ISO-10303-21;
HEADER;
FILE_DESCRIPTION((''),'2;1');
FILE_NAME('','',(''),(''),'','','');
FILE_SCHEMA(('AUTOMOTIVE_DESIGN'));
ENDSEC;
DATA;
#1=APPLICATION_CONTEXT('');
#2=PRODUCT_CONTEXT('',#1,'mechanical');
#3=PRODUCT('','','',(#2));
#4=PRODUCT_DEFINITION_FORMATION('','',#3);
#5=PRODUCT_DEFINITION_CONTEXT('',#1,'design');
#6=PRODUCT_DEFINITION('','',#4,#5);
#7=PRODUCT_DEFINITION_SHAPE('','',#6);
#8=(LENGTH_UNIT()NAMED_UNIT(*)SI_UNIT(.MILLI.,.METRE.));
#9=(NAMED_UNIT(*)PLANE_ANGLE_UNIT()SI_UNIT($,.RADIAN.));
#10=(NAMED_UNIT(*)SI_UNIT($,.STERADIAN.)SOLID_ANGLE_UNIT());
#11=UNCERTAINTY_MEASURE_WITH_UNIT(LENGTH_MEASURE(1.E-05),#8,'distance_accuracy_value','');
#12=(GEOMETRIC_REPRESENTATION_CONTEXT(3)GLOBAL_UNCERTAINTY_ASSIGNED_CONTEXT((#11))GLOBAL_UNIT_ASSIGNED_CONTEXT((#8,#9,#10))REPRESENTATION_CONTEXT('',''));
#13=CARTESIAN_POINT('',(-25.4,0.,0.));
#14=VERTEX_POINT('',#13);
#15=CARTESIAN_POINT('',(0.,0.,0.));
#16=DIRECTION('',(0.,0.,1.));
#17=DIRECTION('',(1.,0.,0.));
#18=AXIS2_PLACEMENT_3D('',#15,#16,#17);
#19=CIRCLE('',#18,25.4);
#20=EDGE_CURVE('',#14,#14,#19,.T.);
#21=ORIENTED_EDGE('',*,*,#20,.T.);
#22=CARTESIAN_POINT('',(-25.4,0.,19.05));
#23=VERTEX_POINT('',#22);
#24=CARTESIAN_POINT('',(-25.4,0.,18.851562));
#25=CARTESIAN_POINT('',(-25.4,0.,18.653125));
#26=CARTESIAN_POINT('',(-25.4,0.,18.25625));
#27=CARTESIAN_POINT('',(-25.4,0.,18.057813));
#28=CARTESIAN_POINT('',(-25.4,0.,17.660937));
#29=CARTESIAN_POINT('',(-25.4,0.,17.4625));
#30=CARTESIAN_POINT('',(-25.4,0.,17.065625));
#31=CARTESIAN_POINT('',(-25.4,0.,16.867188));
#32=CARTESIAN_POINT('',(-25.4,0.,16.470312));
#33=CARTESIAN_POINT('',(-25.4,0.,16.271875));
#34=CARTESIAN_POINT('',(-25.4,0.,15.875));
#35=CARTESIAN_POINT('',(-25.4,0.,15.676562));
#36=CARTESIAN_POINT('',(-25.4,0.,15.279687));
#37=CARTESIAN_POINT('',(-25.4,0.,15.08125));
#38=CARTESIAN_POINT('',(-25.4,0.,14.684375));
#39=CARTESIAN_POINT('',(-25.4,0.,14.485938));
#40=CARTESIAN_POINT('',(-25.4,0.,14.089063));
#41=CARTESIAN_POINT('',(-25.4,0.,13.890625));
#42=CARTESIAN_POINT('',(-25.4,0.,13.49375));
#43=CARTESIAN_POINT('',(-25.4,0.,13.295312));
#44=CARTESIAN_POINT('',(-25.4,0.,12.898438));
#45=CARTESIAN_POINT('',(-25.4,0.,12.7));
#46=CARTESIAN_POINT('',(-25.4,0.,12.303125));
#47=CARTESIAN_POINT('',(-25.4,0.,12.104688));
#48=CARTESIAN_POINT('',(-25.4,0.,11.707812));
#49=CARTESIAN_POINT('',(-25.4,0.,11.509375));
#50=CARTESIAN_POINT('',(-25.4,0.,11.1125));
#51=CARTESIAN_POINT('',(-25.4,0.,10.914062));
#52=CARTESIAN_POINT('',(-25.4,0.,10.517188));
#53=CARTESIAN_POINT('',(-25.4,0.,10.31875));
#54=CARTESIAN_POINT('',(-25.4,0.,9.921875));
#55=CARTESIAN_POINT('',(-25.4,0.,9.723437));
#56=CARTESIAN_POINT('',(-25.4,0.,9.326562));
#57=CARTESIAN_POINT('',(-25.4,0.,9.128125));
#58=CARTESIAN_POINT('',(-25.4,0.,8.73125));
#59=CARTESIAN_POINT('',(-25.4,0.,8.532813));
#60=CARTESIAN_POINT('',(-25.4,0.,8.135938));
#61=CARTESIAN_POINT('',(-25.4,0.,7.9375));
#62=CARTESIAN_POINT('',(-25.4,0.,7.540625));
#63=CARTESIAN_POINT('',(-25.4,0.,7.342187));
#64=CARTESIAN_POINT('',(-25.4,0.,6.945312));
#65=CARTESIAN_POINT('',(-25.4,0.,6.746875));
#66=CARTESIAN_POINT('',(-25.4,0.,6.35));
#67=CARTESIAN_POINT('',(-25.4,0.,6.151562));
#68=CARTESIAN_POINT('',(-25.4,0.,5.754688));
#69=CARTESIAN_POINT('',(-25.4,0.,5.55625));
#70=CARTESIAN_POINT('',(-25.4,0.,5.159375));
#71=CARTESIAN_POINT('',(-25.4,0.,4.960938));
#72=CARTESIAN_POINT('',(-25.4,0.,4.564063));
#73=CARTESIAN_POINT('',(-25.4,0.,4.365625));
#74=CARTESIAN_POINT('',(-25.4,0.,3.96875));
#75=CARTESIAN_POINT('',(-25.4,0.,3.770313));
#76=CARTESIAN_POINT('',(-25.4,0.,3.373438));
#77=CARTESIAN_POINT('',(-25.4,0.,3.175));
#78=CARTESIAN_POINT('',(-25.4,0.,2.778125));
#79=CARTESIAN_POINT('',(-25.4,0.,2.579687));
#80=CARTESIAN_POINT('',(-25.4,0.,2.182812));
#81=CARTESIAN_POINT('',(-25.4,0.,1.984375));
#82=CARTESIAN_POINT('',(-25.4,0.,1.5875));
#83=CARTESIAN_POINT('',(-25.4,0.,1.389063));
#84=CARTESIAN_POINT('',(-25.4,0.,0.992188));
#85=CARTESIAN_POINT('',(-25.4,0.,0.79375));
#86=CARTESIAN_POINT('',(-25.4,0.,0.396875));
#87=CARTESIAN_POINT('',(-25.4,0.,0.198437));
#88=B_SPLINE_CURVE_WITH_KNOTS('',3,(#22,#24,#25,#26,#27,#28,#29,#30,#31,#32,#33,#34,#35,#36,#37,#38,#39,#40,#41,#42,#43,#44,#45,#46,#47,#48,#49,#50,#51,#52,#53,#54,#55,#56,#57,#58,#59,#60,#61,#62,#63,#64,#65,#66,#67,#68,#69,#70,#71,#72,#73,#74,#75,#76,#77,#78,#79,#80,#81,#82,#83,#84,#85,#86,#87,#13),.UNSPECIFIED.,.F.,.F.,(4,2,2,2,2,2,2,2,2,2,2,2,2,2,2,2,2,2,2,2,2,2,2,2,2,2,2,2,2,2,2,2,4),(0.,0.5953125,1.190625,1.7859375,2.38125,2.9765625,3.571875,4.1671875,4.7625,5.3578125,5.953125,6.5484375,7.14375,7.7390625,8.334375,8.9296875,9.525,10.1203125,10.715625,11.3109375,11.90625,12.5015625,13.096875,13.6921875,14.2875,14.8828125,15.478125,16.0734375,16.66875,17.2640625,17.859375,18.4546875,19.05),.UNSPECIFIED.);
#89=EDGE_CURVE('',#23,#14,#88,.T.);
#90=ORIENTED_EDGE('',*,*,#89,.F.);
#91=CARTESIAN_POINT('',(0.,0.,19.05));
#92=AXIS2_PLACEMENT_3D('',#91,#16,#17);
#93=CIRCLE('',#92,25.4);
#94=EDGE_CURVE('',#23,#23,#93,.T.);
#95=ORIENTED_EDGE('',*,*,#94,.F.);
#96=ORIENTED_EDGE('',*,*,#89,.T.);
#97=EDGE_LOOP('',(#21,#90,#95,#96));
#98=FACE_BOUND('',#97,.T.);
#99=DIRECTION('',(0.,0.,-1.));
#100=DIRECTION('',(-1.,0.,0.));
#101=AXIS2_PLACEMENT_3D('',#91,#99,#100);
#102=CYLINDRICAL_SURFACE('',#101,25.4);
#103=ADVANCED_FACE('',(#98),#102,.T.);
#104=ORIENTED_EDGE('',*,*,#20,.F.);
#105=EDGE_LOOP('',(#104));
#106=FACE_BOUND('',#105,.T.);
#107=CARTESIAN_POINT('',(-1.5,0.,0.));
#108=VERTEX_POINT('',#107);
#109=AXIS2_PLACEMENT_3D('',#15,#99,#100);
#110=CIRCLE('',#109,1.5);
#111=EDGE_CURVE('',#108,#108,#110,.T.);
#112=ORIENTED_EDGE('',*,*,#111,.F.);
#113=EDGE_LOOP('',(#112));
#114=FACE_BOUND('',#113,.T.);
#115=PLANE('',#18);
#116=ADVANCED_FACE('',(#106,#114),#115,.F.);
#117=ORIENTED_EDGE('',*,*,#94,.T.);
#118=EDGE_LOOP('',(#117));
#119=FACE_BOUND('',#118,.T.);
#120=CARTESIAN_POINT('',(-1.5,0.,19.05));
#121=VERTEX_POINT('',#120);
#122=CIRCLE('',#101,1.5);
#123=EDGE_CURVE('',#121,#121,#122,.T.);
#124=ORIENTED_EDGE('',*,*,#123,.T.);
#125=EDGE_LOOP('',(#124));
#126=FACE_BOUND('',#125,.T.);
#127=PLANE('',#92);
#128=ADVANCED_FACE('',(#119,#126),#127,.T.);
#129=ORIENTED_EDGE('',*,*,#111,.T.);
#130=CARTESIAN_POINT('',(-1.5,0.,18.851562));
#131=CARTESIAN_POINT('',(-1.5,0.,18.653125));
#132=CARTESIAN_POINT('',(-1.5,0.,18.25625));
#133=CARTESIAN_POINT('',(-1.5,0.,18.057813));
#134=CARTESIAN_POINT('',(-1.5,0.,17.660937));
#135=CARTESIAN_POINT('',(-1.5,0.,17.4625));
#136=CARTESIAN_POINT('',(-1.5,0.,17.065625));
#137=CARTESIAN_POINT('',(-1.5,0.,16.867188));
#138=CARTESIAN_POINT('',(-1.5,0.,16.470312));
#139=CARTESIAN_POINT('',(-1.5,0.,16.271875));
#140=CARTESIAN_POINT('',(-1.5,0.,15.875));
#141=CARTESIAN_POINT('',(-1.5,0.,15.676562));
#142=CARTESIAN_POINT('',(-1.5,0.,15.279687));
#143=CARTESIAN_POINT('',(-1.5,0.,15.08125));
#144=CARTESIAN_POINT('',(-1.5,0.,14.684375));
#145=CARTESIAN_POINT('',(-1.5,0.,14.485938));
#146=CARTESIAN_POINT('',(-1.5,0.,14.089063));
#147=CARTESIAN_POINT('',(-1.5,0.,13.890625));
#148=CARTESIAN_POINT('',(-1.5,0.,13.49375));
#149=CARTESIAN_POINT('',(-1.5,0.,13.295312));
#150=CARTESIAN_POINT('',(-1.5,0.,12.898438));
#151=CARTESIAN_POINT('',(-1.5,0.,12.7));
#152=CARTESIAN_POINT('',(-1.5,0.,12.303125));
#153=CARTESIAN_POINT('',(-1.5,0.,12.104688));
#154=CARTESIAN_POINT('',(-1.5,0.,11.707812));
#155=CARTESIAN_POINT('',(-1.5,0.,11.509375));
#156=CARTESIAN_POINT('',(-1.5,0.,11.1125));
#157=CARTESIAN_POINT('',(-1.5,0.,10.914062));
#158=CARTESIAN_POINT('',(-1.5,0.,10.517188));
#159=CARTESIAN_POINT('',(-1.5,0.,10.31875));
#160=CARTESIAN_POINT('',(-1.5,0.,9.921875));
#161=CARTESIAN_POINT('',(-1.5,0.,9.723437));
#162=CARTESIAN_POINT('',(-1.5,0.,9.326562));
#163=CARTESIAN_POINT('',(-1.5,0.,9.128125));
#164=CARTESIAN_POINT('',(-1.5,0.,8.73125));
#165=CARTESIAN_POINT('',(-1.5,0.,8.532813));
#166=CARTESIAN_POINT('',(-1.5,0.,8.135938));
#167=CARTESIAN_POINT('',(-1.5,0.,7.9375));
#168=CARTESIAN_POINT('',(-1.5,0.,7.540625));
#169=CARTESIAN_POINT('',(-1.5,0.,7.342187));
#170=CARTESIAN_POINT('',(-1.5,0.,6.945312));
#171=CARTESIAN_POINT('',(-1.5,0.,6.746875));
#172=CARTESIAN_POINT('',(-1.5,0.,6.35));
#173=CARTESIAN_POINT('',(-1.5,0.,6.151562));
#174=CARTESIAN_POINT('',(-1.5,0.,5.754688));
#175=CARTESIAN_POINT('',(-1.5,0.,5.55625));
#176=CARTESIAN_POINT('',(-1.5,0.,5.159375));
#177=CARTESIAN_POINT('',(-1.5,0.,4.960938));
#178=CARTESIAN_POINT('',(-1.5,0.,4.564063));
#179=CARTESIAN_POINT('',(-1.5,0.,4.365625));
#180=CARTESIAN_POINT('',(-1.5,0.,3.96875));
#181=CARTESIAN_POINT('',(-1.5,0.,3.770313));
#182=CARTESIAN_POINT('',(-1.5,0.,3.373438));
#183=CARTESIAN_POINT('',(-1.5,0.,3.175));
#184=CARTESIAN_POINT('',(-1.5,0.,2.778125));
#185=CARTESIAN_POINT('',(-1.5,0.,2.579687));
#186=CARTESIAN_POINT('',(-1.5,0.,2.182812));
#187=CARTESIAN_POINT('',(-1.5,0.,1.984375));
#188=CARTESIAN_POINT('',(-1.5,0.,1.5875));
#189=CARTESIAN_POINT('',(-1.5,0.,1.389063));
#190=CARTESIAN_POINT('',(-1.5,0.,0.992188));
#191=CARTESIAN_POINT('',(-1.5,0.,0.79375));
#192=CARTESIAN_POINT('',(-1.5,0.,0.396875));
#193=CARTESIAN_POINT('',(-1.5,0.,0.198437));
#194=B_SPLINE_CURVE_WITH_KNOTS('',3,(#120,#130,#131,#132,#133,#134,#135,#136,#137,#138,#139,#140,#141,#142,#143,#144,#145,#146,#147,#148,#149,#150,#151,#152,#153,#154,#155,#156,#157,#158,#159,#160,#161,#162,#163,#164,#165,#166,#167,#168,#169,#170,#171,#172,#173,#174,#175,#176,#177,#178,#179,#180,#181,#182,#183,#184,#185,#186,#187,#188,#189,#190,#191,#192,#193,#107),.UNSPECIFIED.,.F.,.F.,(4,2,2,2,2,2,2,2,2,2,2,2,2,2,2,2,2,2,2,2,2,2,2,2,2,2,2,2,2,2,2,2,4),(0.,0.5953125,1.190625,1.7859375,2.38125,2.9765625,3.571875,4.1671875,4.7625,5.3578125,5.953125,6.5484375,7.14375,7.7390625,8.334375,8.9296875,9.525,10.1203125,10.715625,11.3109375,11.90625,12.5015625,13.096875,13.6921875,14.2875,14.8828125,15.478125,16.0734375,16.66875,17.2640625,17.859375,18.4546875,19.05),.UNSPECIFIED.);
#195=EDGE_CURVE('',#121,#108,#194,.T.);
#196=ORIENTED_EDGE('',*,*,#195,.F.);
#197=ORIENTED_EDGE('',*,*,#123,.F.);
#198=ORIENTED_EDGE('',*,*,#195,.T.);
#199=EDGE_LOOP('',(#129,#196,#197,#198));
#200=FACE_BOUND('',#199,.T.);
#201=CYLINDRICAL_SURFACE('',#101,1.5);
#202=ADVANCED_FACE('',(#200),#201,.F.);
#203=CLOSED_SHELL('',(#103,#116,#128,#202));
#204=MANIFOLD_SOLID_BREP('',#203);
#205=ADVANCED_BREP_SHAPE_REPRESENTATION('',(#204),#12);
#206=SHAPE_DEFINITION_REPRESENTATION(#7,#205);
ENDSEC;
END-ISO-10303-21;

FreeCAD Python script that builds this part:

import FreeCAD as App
import Part
import Sketcher
Q = App.Units.Quantity

doc = App.newDocument("Part")
body = doc.addObject("PartDesign::Body", "Body")

# Sketch on XY plane
sketch1 = doc.addObject("Sketcher::SketchObject", "Sketch")
body.addObject(sketch1)
sketch1.AttachmentSupport = (doc.XY_Plane, [""])
sketch1.MapMode = "FlatFace"
sketch1.addGeometry(Part.Circle(App.Vector(0, 0, 0), App.Vector(0, 0, 1), 25.4), False)
sketch1.addConstraint(Sketcher.Constraint("Coincident", 0, 3, -1, 1))
sketch1.addConstraint(Sketcher.Constraint("Diameter", 0, Q("2 in")))
pad1 = doc.addObject("PartDesign::Pad", "Pad")
body.addObject(pad1)
pad1.Profile = sketch1
pad1.Length = Q("0.75 in")

# Sketch on XY plane
sketch2 = doc.addObject("Sketcher::SketchObject", "Sketch001")
body.addObject(sketch2)
sketch2.AttachmentSupport = (doc.XY_Plane, [""])
sketch2.MapMode = "FlatFace"
sketch2.addGeometry(Part.Circle(App.Vector(0, 0, 0), App.Vector(0, 0, 1), 1.5), False)
sketch2.addConstraint(Sketcher.Constraint("Coincident", 0, 3, -1, 1))
sketch2.addConstraint(Sketcher.Constraint("Diameter", 0, Q("3 mm")))
pocket1 = doc.addObject("PartDesign::Pocket", "Pocket")
body.addObject(pocket1)
pocket1.Profile = sketch2
pocket1.Length = Q("0.75 in")
pocket1.Reversed = True

doc.recompute()
